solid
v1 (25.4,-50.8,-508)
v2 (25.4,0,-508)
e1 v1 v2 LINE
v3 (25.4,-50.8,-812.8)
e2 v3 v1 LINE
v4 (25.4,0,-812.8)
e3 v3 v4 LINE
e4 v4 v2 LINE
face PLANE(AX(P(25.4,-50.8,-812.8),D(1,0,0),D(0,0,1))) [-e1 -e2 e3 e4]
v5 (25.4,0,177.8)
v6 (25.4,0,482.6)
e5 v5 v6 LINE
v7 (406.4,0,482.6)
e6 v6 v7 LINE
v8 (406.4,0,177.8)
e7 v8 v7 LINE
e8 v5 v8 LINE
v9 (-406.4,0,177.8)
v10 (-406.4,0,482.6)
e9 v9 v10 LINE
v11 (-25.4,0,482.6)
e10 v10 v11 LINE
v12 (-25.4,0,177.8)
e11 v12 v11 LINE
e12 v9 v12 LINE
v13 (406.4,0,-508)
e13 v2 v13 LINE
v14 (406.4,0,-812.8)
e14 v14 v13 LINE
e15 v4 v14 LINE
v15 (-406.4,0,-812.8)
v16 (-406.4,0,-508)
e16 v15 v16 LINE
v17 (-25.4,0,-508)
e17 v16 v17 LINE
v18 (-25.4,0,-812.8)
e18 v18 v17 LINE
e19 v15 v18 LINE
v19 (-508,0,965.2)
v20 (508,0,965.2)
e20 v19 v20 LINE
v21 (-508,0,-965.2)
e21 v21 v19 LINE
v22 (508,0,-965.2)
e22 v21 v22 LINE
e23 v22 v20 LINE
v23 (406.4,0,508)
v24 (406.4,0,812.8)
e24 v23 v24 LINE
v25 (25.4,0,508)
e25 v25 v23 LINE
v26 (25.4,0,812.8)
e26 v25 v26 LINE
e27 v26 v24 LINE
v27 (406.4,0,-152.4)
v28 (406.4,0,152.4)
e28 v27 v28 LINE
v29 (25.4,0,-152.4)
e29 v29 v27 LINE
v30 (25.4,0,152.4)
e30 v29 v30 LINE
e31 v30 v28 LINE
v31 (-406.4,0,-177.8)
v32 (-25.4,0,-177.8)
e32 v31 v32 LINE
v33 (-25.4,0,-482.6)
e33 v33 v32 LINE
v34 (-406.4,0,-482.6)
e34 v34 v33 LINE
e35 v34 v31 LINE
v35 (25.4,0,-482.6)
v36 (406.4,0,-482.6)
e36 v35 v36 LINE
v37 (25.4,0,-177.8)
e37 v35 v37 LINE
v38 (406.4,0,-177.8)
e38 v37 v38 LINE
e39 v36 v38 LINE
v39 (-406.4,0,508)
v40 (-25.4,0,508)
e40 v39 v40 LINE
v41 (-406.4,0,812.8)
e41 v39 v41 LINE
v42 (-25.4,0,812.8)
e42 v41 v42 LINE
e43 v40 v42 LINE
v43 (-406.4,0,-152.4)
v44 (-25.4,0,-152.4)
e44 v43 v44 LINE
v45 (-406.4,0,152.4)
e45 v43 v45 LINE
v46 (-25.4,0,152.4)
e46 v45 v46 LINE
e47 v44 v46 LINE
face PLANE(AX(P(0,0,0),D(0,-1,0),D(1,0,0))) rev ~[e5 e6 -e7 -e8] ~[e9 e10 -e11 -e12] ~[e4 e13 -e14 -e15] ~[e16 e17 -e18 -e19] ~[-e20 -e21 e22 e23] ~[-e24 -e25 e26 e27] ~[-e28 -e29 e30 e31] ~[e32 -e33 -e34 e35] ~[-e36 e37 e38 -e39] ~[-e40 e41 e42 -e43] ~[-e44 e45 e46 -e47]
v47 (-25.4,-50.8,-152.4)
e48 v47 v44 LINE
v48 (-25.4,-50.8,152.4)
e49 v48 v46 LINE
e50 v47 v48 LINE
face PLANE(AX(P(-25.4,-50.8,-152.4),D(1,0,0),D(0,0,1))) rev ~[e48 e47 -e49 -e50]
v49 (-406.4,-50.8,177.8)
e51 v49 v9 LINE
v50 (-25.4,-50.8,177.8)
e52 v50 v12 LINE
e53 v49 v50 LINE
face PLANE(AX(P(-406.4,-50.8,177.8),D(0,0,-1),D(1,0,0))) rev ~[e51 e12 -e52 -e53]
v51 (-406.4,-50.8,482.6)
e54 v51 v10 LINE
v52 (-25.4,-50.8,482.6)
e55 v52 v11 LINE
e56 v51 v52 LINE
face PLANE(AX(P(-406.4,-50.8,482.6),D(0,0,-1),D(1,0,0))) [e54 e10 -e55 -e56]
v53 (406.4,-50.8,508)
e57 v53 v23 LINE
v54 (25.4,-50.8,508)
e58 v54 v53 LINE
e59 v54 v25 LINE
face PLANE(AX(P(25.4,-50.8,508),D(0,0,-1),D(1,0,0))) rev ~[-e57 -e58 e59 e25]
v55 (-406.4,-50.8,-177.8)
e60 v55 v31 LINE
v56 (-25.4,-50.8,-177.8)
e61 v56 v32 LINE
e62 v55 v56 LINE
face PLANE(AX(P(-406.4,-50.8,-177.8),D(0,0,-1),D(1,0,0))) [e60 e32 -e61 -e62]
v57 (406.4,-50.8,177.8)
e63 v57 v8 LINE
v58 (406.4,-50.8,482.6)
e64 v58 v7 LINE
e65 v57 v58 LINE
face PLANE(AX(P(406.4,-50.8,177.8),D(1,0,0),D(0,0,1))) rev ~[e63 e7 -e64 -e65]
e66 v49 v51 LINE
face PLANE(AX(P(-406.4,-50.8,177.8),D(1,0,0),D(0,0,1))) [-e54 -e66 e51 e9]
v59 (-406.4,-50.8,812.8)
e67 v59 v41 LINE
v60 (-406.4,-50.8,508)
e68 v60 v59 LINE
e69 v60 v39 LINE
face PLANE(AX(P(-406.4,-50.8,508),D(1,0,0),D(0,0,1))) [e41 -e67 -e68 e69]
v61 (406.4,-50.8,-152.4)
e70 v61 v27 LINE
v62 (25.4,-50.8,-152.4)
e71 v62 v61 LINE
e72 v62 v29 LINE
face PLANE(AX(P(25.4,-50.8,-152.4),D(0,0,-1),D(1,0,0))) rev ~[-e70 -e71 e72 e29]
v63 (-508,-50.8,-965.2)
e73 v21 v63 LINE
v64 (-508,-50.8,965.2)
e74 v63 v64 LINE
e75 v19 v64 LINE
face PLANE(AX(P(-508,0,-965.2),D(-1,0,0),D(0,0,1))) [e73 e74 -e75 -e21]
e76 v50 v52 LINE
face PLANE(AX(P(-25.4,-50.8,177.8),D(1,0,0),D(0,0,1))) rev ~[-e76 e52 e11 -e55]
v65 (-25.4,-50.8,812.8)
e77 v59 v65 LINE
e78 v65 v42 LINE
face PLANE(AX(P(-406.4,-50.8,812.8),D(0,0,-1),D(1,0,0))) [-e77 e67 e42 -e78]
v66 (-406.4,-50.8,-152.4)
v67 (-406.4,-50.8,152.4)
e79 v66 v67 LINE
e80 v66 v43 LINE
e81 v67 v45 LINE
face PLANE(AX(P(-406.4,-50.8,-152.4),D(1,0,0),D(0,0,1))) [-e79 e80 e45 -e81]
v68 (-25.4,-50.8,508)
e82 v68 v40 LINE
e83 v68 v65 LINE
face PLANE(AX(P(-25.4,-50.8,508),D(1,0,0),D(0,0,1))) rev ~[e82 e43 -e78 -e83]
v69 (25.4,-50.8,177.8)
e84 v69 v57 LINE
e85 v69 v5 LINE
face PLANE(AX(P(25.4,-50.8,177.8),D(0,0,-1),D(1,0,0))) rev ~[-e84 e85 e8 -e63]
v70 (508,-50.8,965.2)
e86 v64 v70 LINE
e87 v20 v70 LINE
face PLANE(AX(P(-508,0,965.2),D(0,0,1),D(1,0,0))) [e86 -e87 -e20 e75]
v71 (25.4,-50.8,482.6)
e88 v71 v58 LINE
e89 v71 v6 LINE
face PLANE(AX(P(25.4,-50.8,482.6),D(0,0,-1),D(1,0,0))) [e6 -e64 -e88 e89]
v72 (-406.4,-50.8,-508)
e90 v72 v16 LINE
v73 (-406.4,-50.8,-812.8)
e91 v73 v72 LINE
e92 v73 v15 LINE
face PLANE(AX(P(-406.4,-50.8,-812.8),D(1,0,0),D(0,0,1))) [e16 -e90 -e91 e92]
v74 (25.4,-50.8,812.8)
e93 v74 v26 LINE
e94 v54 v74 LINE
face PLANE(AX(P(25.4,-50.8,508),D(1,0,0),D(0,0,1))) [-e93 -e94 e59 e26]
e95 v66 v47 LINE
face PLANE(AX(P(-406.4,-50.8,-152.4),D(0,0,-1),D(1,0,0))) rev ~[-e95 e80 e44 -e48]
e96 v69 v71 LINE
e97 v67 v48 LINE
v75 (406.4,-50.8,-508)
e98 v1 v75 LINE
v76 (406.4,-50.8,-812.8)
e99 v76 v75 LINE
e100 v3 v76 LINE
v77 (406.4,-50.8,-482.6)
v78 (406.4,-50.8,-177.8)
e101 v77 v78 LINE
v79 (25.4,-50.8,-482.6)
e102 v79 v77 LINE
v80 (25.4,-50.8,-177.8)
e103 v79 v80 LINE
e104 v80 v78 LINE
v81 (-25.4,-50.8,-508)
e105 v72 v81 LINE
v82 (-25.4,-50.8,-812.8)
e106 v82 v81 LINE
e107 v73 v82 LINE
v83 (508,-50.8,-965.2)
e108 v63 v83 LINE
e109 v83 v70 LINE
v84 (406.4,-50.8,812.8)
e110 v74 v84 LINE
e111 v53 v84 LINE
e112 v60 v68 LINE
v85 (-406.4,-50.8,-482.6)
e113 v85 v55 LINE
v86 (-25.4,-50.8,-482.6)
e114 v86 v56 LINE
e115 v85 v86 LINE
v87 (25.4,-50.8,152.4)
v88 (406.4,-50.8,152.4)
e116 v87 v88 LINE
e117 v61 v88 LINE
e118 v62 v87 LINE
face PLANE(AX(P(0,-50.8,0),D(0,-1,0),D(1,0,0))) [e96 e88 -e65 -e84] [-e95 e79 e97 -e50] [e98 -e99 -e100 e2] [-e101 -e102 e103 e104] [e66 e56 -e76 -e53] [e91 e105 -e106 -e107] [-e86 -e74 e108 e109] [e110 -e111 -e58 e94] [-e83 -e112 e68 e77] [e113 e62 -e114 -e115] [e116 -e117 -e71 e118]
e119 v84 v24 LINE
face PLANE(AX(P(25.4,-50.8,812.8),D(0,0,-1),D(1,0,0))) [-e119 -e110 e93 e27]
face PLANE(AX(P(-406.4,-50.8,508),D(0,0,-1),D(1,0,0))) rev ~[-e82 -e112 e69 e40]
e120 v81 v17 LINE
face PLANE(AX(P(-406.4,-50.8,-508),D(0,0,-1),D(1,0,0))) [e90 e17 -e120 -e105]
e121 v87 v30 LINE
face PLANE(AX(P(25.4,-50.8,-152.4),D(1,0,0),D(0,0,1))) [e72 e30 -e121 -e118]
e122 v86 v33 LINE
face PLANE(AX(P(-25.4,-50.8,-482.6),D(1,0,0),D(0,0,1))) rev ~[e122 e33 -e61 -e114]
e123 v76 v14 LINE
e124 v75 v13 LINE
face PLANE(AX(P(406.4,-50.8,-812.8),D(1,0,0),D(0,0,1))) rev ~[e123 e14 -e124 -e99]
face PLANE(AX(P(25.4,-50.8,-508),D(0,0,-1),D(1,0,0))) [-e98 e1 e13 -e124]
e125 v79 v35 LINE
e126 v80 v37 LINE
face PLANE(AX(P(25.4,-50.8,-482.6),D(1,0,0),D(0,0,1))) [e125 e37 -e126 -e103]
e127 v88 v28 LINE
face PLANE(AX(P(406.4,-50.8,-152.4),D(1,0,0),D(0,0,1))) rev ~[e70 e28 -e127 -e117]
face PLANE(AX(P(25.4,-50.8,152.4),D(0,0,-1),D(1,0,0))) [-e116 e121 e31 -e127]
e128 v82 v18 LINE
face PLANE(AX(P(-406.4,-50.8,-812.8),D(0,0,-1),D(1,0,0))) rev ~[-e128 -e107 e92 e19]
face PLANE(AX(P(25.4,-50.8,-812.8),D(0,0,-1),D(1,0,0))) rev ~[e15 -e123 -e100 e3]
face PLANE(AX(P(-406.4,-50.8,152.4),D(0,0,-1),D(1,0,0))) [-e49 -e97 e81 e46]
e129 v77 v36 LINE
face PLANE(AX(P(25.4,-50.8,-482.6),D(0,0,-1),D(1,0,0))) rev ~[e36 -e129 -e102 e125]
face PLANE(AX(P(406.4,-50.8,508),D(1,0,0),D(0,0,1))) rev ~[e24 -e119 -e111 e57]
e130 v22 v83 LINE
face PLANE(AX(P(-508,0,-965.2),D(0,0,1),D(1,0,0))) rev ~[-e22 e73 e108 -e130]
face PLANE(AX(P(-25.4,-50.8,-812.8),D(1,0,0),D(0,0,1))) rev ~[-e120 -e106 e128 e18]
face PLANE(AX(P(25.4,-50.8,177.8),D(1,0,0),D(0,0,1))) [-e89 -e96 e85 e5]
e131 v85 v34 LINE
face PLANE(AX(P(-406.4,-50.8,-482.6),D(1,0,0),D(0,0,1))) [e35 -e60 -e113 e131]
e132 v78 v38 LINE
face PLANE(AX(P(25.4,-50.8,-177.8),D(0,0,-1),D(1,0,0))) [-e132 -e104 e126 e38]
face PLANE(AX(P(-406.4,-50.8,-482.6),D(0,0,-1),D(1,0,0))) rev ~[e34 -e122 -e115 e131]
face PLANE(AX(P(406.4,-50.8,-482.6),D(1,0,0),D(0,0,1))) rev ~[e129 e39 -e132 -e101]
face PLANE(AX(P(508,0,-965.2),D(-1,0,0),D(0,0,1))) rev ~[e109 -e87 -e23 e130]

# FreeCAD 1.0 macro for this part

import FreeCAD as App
import Part
import Sketcher
Q = App.Units.Quantity

doc = App.newDocument("Part")
body = doc.addObject("PartDesign::Body", "Body")

# Sketch on XZ plane
sketch1 = body.newObject("Sketcher::SketchObject", "Sketch")
sketch1.AttachmentSupport = (doc.getObject("XZ_Plane"), [""])
sketch1.MapMode = "FlatFace"
sketch1.addGeometry(Part.LineSegment(App.Vector(-508, 965.2, 0), App.Vector(-508, -965.2, 0)), False)
sketch1.addGeometry(Part.LineSegment(App.Vector(-508, -965.2, 0), App.Vector(508, -965.2, 0)), False)
sketch1.addGeometry(Part.LineSegment(App.Vector(508, -965.2, 0), App.Vector(508, 965.2, 0)), False)
sketch1.addGeometry(Part.LineSegment(App.Vector(508, 965.2, 0), App.Vector(-508, 965.2, 0)), False)
sketch1.addConstraint(Sketcher.Constraint("Coincident", 0, 2, 1, 1))
sketch1.addConstraint(Sketcher.Constraint("Coincident", 1, 2, 2, 1))
sketch1.addConstraint(Sketcher.Constraint("Coincident", 2, 2, 3, 1))
sketch1.addConstraint(Sketcher.Constraint("Coincident", 3, 2, 0, 1))
sketch1.addConstraint(Sketcher.Constraint("Vertical", 0))
sketch1.addConstraint(Sketcher.Constraint("Horizontal", 1))
sketch1.addConstraint(Sketcher.Constraint("Vertical", 2))
sketch1.addConstraint(Sketcher.Constraint("Horizontal", 3))
sketch1.addConstraint(Sketcher.Constraint("Symmetric", 0, 2, 2, 2, -1, 1))
sketch1.addConstraint(Sketcher.Constraint("DistanceX", 1, 1, 1, 2, Q("40 in")))
sketch1.addConstraint(Sketcher.Constraint("DistanceY", 0, 2, 0, 1, Q("76 in")))
pad1 = body.newObject("PartDesign::Pad", "Pad")
pad1.Profile = sketch1
pad1.Length = Q("2 in")

# Sketch on XZ plane
sketch2 = body.newObject("Sketcher::SketchObject", "Sketch001")
sketch2.AttachmentSupport = (doc.getObject("XZ_Plane"), [""])
sketch2.MapMode = "FlatFace"
sketch2.AttachmentOffset = App.Placement(App.Vector(0, 0, 2 * 25.4), App.Rotation())
sketch2.addGeometry(Part.LineSegment(App.Vector(-406.4, 812.8, 0), App.Vector(-406.4, 508, 0)), False)
sketch2.addGeometry(Part.LineSegment(App.Vector(-406.4, 508, 0), App.Vector(-25.4, 508, 0)), False)
sketch2.addGeometry(Part.LineSegment(App.Vector(-25.4, 508, 0), App.Vector(-25.4, 812.8, 0)), False)
sketch2.addGeometry(Part.LineSegment(App.Vector(-25.4, 812.8, 0), App.Vector(-406.4, 812.8, 0)), False)
sketch2.addGeometry(Part.LineSegment(App.Vector(-406.4, 482.6, 0), App.Vector(-406.4, 177.8, 0)), False)
sketch2.addGeometry(Part.LineSegment(App.Vector(-406.4, 177.8, 0), App.Vector(-25.4, 177.8, 0)), False)
sketch2.addGeometry(Part.LineSegment(App.Vector(-25.4, 177.8, 0), App.Vector(-25.4, 482.6, 0)), False)
sketch2.addGeometry(Part.LineSegment(App.Vector(-25.4, 482.6, 0), App.Vector(-406.4, 482.6, 0)), False)
sketch2.addGeometry(Part.LineSegment(App.Vector(-406.4, 152.4, 0), App.Vector(-406.4, -152.4, 0)), False)
sketch2.addGeometry(Part.LineSegment(App.Vector(-406.4, -152.4, 0), App.Vector(-25.4, -152.4, 0)), False)
sketch2.addGeometry(Part.LineSegment(App.Vector(-25.4, -152.4, 0), App.Vector(-25.4, 152.4, 0)), False)
sketch2.addGeometry(Part.LineSegment(App.Vector(-25.4, 152.4, 0), App.Vector(-406.4, 152.4, 0)), False)
sketch2.addGeometry(Part.LineSegment(App.Vector(-406.4, -177.8, 0), App.Vector(-406.4, -482.6, 0)), False)
sketch2.addGeometry(Part.LineSegment(App.Vector(-406.4, -482.6, 0), App.Vector(-25.4, -482.6, 0)), False)
sketch2.addGeometry(Part.LineSegment(App.Vector(-25.4, -482.6, 0), App.Vector(-25.4, -177.8, 0)), False)
sketch2.addGeometry(Part.LineSegment(App.Vector(-25.4, -177.8, 0), App.Vector(-406.4, -177.8, 0)), False)
sketch2.addGeometry(Part.LineSegment(App.Vector(-406.4, -508, 0), App.Vector(-406.4, -812.8, 0)), False)
sketch2.addGeometry(Part.LineSegment(App.Vector(-406.4, -812.8, 0), App.Vector(-25.4, -812.8, 0)), False)
sketch2.addGeometry(Part.LineSegment(App.Vector(-25.4, -812.8, 0), App.Vector(-25.4, -508, 0)), False)
sketch2.addGeometry(Part.LineSegment(App.Vector(-25.4, -508, 0), App.Vector(-406.4, -508, 0)), False)
sketch2.addGeometry(Part.LineSegment(App.Vector(25.4, 482.6, 0), App.Vector(25.4, 177.8, 0)), False)
sketch2.addGeometry(Part.LineSegment(App.Vector(25.4, 177.8, 0), App.Vector(406.4, 177.8, 0)), False)
sketch2.addGeometry(Part.LineSegment(App.Vector(406.4, 177.8, 0), App.Vector(406.4, 482.6, 0)), False)
sketch2.addGeometry(Part.LineSegment(App.Vector(406.4, 482.6, 0), App.Vector(25.4, 482.6, 0)), False)
sketch2.addGeometry(Part.LineSegment(App.Vector(25.4, 812.8, 0), App.Vector(25.4, 508, 0)), False)
sketch2.addGeometry(Part.LineSegment(App.Vector(25.4, 508, 0), App.Vector(406.4, 508, 0)), False)
sketch2.addGeometry(Part.LineSegment(App.Vector(406.4, 508, 0), App.Vector(406.4, 812.8, 0)), False)
sketch2.addGeometry(Part.LineSegment(App.Vector(406.4, 812.8, 0), App.Vector(25.4, 812.8, 0)), False)
sketch2.addGeometry(Part.LineSegment(App.Vector(25.4, 152.4, 0), App.Vector(25.4, -152.4, 0)), False)
sketch2.addGeometry(Part.LineSegment(App.Vector(25.4, -152.4, 0), App.Vector(406.4, -152.4, 0)), False)
sketch2.addGeometry(Part.LineSegment(App.Vector(406.4, -152.4, 0), App.Vector(406.4, 152.4, 0)), False)
sketch2.addGeometry(Part.LineSegment(App.Vector(406.4, 152.4, 0), App.Vector(25.4, 152.4, 0)), False)
sketch2.addGeometry(Part.LineSegment(App.Vector(25.4, -177.8, 0), App.Vector(25.4, -482.6, 0)), False)
sketch2.addGeometry(Part.LineSegment(App.Vector(25.4, -482.6, 0), App.Vector(406.4, -482.6, 0)), False)
sketch2.addGeometry(Part.LineSegment(App.Vector(406.4, -482.6, 0), App.Vector(406.4, -177.8, 0)), False)
sketch2.addGeometry(Part.LineSegment(App.Vector(406.4, -177.8, 0), App.Vector(25.4, -177.8, 0)), False)
sketch2.addGeometry(Part.LineSegment(App.Vector(25.4, -508, 0), App.Vector(25.4, -812.8, 0)), False)
sketch2.addGeometry(Part.LineSegment(App.Vector(25.4, -812.8, 0), App.Vector(406.4, -812.8, 0)), False)
sketch2.addGeometry(Part.LineSegment(App.Vector(406.4, -812.8, 0), App.Vector(406.4, -508, 0)), False)
sketch2.addGeometry(Part.LineSegment(App.Vector(406.4, -508, 0), App.Vector(25.4, -508, 0)), False)
sketch2.addConstraint(Sketcher.Constraint("Coincident", 0, 2, 1, 1))
sketch2.addConstraint(Sketcher.Constraint("Coincident", 1, 2, 2, 1))
sketch2.addConstraint(Sketcher.Constraint("Coincident", 2, 2, 3, 1))
sketch2.addConstraint(Sketcher.Constraint("Coincident", 3, 2, 0, 1))
sketch2.addConstraint(Sketcher.Constraint("Coincident", 4, 2, 5, 1))
sketch2.addConstraint(Sketcher.Constraint("Coincident", 5, 2, 6, 1))
sketch2.addConstraint(Sketcher.Constraint("Coincident", 6, 2, 7, 1))
sketch2.addConstraint(Sketcher.Constraint("Coincident", 7, 2, 4, 1))
sketch2.addConstraint(Sketcher.Constraint("Coincident", 8, 2, 9, 1))
sketch2.addConstraint(Sketcher.Constraint("Coincident", 9, 2, 10, 1))
sketch2.addConstraint(Sketcher.Constraint("Coincident", 10, 2, 11, 1))
sketch2.addConstraint(Sketcher.Constraint("Coincident", 11, 2, 8, 1))
sketch2.addConstraint(Sketcher.Constraint("Coincident", 12, 2, 13, 1))
sketch2.addConstraint(Sketcher.Constraint("Coincident", 13, 2, 14, 1))
sketch2.addConstraint(Sketcher.Constraint("Coincident", 14, 2, 15, 1))
sketch2.addConstraint(Sketcher.Constraint("Coincident", 15, 2, 12, 1))
sketch2.addConstraint(Sketcher.Constraint("Coincident", 16, 2, 17, 1))
sketch2.addConstraint(Sketcher.Constraint("Coincident", 17, 2, 18, 1))
sketch2.addConstraint(Sketcher.Constraint("Coincident", 18, 2, 19, 1))
sketch2.addConstraint(Sketcher.Constraint("Coincident", 19, 2, 16, 1))
sketch2.addConstraint(Sketcher.Constraint("Coincident", 20, 2, 21, 1))
sketch2.addConstraint(Sketcher.Constraint("Coincident", 21, 2, 22, 1))
sketch2.addConstraint(Sketcher.Constraint("Coincident", 22, 2, 23, 1))
sketch2.addConstraint(Sketcher.Constraint("Coincident", 23, 2, 20, 1))
sketch2.addConstraint(Sketcher.Constraint("Coincident", 24, 2, 25, 1))
sketch2.addConstraint(Sketcher.Constraint("Coincident", 25, 2, 26, 1))
sketch2.addConstraint(Sketcher.Constraint("Coincident", 26, 2, 27, 1))
sketch2.addConstraint(Sketcher.Constraint("Coincident", 27, 2, 24, 1))
sketch2.addConstraint(Sketcher.Constraint("Coincident", 28, 2, 29, 1))
sketch2.addConstraint(Sketcher.Constraint("Coincident", 29, 2, 30, 1))
sketch2.addConstraint(Sketcher.Constraint("Coincident", 30, 2, 31, 1))
sketch2.addConstraint(Sketcher.Constraint("Coincident", 31, 2, 28, 1))
sketch2.addConstraint(Sketcher.Constraint("Coincident", 32, 2, 33, 1))
sketch2.addConstraint(Sketcher.Constraint("Coincident", 33, 2, 34, 1))
sketch2.addConstraint(Sketcher.Constraint("Coincident", 34, 2, 35, 1))
sketch2.addConstraint(Sketcher.Constraint("Coincident", 35, 2, 32, 1))
sketch2.addConstraint(Sketcher.Constraint("Coincident", 36, 2, 37, 1))
sketch2.addConstraint(Sketcher.Constraint("Coincident", 37, 2, 38, 1))
sketch2.addConstraint(Sketcher.Constraint("Coincident", 38, 2, 39, 1))
sketch2.addConstraint(Sketcher.Constraint("Coincident", 39, 2, 36, 1))
sketch2.addConstraint(Sketcher.Constraint("Vertical", 0))
sketch2.addConstraint(Sketcher.Constraint("Horizontal", 1))
sketch2.addConstraint(Sketcher.Constraint("Vertical", 2))
sketch2.addConstraint(Sketcher.Constraint("Horizontal", 3))
sketch2.addConstraint(Sketcher.Constraint("Vertical", 4))
sketch2.addConstraint(Sketcher.Constraint("Horizontal", 5))
sketch2.addConstraint(Sketcher.Constraint("Vertical", 6))
sketch2.addConstraint(Sketcher.Constraint("Horizontal", 7))
sketch2.addConstraint(Sketcher.Constraint("Vertical", 8))
sketch2.addConstraint(Sketcher.Constraint("Horizontal", 9))
sketch2.addConstraint(Sketcher.Constraint("Vertical", 10))
sketch2.addConstraint(Sketcher.Constraint("Horizontal", 11))
sketch2.addConstraint(Sketcher.Constraint("Vertical", 12))
sketch2.addConstraint(Sketcher.Constraint("Horizontal", 13))
sketch2.addConstraint(Sketcher.Constraint("Vertical", 14))
sketch2.addConstraint(Sketcher.Constraint("Horizontal", 15))
sketch2.addConstraint(Sketcher.Constraint("Vertical", 16))
sketch2.addConstraint(Sketcher.Constraint("Horizontal", 17))
sketch2.addConstraint(Sketcher.Constraint("Vertical", 18))
sketch2.addConstraint(Sketcher.Constraint("Horizontal", 19))
sketch2.addConstraint(Sketcher.Constraint("Vertical", 20))
sketch2.addConstraint(Sketcher.Constraint("Horizontal", 21))
sketch2.addConstraint(Sketcher.Constraint("Vertical", 22))
sketch2.addConstraint(Sketcher.Constraint("Horizontal", 23))
sketch2.addConstraint(Sketcher.Constraint("Vertical", 24))
sketch2.addConstraint(Sketcher.Constraint("Horizontal", 25))
sketch2.addConstraint(Sketcher.Constraint("Vertical", 26))
sketch2.addConstraint(Sketcher.Constraint("Horizontal", 27))
sketch2.addConstraint(Sketcher.Constraint("Vertical", 28))
sketch2.addConstraint(Sketcher.Constraint("Horizontal", 29))
sketch2.addConstraint(Sketcher.Constraint("Vertical", 30))
sketch2.addConstraint(Sketcher.Constraint("Horizontal", 31))
sketch2.addConstraint(Sketcher.Constraint("Vertical", 32))
sketch2.addConstraint(Sketcher.Constraint("Horizontal", 33))
sketch2.addConstraint(Sketcher.Constraint("Vertical", 34))
sketch2.addConstraint(Sketcher.Constraint("Horizontal", 35))
sketch2.addConstraint(Sketcher.Constraint("Vertical", 36))
sketch2.addConstraint(Sketcher.Constraint("Horizontal", 37))
sketch2.addConstraint(Sketcher.Constraint("Vertical", 38))
sketch2.addConstraint(Sketcher.Constraint("Horizontal", 39))
sketch2.addConstraint(Sketcher.Constraint("Symmetric", 14, 2, 20, 2, -1, 1))
sketch2.addConstraint(Sketcher.Constraint("Symmetric", 12, 2, 22, 2, -1, 1))
sketch2.addConstraint(Sketcher.Constraint("Symmetric", 18, 2, 24, 2, -1, 1))
sketch2.addConstraint(Sketcher.Constraint("Symmetric", 16, 2, 26, 2, -1, 1))
sketch2.addConstraint(Sketcher.Constraint("Symmetric", 10, 2, 28, 2, -1, 1))
sketch2.addConstraint(Sketcher.Constraint("Symmetric", 8, 2, 30, 2, -1, 1))
sketch2.addConstraint(Sketcher.Constraint("Symmetric", 6, 2, 32, 2, -1, 1))
sketch2.addConstraint(Sketcher.Constraint("Symmetric", 4, 2, 34, 2, -1, 1))
sketch2.addConstraint(Sketcher.Constraint("Symmetric", 2, 2, 36, 2, -1, 1))
sketch2.addConstraint(Sketcher.Constraint("Symmetric", 0, 2, 38, 2, -1, 1))
sketch2.addConstraint(Sketcher.Constraint("Symmetric", 5, 2, 20, 2, -2))
sketch2.addConstraint(Sketcher.Constraint("Symmetric", 7, 2, 22, 2, -2))
sketch2.addConstraint(Sketcher.Constraint("Symmetric", 1, 2, 24, 2, -2))
sketch2.addConstraint(Sketcher.Constraint("Symmetric", 3, 2, 26, 2, -2))
sketch2.addConstraint(Sketcher.Constraint("Horizontal", 9, 2, 28, 2))
sketch2.addConstraint(Sketcher.Constraint("Vertical", 3, 2, 4, 2))
sketch2.addConstraint(Sketcher.Constraint("Vertical", 2, 2, 5, 2))
sketch2.addConstraint(Sketcher.Constraint("Vertical", 7, 2, 8, 2))
sketch2.addConstraint(Sketcher.Constraint("Vertical", 6, 2, 9, 2))
sketch2.addConstraint(Sketcher.Constraint("Equal", 2, 4))
sketch2.addConstraint(Sketcher.Constraint("Equal", 6, 8))
sketch2.addConstraint(Sketcher.Constraint("DistanceX", 1, 1, 1, 2, Q("15 in")))
sketch2.addConstraint(Sketcher.Constraint("DistanceY", 0, 2, 0, 1, Q("12 in")))
sketch2.addConstraint(Sketcher.Constraint("DistanceX", 0, 2, -1, 1, Q("16 in")))
sketch2.addConstraint(Sketcher.Constraint("DistanceY", -1, 1, 0, 2, Q("20 in")))
sketch2.addConstraint(Sketcher.Constraint("DistanceY", -1, 1, 4, 2, Q("7 in")))
pocket1 = body.newObject("PartDesign::Pocket", "Pocket")
pocket1.Profile = sketch2
pocket1.Type = "ThroughAll"

doc.recompute()
